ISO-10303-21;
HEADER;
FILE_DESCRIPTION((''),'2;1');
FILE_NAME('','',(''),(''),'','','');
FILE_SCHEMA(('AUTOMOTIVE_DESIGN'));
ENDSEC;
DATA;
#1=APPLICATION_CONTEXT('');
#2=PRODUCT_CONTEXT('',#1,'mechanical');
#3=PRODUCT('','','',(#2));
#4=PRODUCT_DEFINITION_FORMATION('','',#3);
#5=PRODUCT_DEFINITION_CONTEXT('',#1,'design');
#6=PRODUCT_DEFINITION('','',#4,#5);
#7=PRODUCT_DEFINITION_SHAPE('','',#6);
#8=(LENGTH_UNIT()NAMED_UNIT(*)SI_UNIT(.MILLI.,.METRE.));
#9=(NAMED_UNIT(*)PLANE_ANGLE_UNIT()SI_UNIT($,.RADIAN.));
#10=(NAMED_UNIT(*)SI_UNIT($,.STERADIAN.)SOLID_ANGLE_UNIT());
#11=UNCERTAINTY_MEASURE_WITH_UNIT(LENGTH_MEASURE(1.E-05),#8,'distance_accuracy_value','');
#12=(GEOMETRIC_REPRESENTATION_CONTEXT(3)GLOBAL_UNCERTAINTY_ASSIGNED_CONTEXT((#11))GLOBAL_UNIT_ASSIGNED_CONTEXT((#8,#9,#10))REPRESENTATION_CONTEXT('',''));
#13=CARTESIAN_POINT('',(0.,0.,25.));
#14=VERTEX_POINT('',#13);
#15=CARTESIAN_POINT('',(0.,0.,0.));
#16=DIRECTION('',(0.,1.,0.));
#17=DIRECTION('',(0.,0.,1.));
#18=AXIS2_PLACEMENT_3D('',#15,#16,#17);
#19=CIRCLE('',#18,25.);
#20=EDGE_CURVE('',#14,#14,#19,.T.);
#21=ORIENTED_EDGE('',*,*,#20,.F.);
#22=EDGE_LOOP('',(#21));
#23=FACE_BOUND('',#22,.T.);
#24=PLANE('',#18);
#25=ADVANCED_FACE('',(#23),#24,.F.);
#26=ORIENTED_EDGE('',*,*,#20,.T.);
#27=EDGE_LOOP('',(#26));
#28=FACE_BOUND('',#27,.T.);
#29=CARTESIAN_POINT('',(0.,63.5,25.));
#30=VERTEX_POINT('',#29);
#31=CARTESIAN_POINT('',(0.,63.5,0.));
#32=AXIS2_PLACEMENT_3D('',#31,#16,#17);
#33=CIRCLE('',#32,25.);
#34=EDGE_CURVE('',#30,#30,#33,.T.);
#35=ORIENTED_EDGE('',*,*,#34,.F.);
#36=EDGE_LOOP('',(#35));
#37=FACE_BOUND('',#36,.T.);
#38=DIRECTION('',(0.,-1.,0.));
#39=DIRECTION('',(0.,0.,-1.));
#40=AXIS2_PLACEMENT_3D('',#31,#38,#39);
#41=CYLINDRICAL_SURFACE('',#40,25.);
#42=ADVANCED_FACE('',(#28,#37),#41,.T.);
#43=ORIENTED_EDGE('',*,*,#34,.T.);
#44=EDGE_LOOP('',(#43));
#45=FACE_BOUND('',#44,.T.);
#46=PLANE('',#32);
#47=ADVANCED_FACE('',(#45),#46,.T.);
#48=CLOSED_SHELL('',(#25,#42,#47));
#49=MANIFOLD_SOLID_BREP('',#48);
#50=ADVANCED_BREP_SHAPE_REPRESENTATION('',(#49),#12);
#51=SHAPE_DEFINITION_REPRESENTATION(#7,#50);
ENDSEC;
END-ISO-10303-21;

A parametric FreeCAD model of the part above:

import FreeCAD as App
import Part
import Sketcher
from FreeCAD import Vector

doc = App.newDocument("Part")
params = doc.addObject("Spreadsheet::Sheet", "Params")
for row, (alias, value) in enumerate([
    ("sketch1_diameter", "50 mm"),
    ("pad1_length", "63.5 mm"),
], start=1):
    params.set(f"A{row}", alias)
    params.set(f"B{row}", "=" + value)
    params.setAlias(f"B{row}", alias)

body = doc.addObject("PartDesign::Body", "Body")

# Sketch on XZ plane
sketch1 = body.newObject("Sketcher::SketchObject", "Sketch")
sketch1.AttachmentSupport = (doc.getObject("XZ_Plane"), [""])
sketch1.MapMode = "FlatFace"
sketch1.addGeometry(Part.Circle(Vector(0, 0, 0), Vector(0, 0, 1), 25), False)
sketch1.addConstraint([
    Sketcher.Constraint("Coincident", 0, 3, -1, 1),
    Sketcher.Constraint("Diameter", 0, 50.0),
])
sketch1.setExpression("Constraints[1]", "Params.sketch1_diameter")
pad1 = body.newObject("PartDesign::Pad", "Pad")
pad1.Profile = sketch1
pad1.setExpression("Length", "Params.pad1_length")
pad1.Reversed = True

doc.recompute()
